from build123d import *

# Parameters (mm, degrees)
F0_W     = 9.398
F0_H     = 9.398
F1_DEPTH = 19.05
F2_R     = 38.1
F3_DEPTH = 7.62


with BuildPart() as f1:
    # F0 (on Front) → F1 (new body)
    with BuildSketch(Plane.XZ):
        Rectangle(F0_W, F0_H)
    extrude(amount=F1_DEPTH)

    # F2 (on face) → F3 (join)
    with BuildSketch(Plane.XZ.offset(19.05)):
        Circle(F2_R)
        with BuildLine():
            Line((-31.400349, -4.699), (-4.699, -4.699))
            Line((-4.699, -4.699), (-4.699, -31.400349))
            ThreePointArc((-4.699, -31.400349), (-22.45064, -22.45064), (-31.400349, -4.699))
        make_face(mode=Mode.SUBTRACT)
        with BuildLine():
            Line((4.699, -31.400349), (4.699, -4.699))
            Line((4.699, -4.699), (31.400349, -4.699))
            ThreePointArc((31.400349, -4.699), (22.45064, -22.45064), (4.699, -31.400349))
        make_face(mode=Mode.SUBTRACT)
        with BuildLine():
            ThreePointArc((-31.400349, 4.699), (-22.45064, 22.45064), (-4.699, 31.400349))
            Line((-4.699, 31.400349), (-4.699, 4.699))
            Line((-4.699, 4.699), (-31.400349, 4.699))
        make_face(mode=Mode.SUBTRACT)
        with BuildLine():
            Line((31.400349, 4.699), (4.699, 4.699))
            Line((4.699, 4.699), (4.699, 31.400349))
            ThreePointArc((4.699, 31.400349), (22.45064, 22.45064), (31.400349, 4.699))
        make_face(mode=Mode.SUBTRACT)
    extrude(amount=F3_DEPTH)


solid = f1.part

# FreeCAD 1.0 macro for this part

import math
import FreeCAD as App
import Part
import Sketcher

V = App.Vector
Q = App.Units.Quantity

doc = App.newDocument("Part")
body = doc.addObject("PartDesign::Body", "Body")

sketch1 = doc.addObject("Sketcher::SketchObject", "Sketch")
body.addObject(sketch1)
sketch1.AttachmentSupport = (doc.XZ_Plane, [""])
sketch1.MapMode = "FlatFace"
sketch1.addGeometry([
    Part.LineSegment(V(-4.699, 4.699, 0), V(-4.699, -4.699, 0)),
    Part.LineSegment(V(-4.699, -4.699, 0), V(4.699, -4.699, 0)),
    Part.LineSegment(V(4.699, -4.699, 0), V(4.699, 4.699, 0)),
    Part.LineSegment(V(4.699, 4.699, 0), V(-4.699, 4.699, 0)),
], False)
sketch1.addConstraint([
    Sketcher.Constraint("Coincident", 0, 2, 1, 1),
    Sketcher.Constraint("Coincident", 1, 2, 2, 1),
    Sketcher.Constraint("Coincident", 2, 2, 3, 1),
    Sketcher.Constraint("Coincident", 3, 2, 0, 1),
    Sketcher.Constraint("Vertical", 0),
    Sketcher.Constraint("Horizontal", 1),
    Sketcher.Constraint("Vertical", 2),
    Sketcher.Constraint("Horizontal", 3),
    Sketcher.Constraint("Symmetric", 0, 2, 2, 2, -1, 1),
    Sketcher.Constraint("Equal", 3, 0),
    Sketcher.Constraint("DistanceX", 1, 1, 1, 2, Q("0.37 in")),
])
pad1 = doc.addObject("PartDesign::Pad", "Pad")
body.addObject(pad1)
pad1.Profile = sketch1
pad1.Length = Q("0.75 in")

sketch2 = doc.addObject("Sketcher::SketchObject", "Sketch001")
body.addObject(sketch2)
sketch2.AttachmentSupport = (doc.XZ_Plane, [""])
sketch2.MapMode = "FlatFace"
sketch2.AttachmentOffset = App.Placement(V(0, 0, 0.75 * 25.4), App.Rotation())
sketch2.addGeometry([
    Part.Circle(V(0, 0, 0), V(0, 0, 1), 38.1),
    Part.ArcOfCircle(Part.Circle(V(0.000003, 0.000003, 0), V(0, 0, 1), 31.750003), math.radians(-171.488955), math.radians(-98.511045)),
    Part.LineSegment(V(-31.400349, -4.699, 0), V(-4.699, -4.699, 0)),
    Part.LineSegment(V(-4.699, -4.699, 0), V(-4.699, -31.400349, 0)),
    Part.ArcOfCircle(Part.Circle(V(-0.000003, 0.000003, 0), V(0, 0, 1), 31.750003), math.radians(-81.488955), math.radians(-8.511045)),
    Part.LineSegment(V(4.699, -31.400349, 0), V(4.699, -4.699, 0)),
    Part.LineSegment(V(4.699, -4.699, 0), V(31.400349, -4.699, 0)),
    Part.LineSegment(V(-4.699, 4.699, 0), V(-31.400349, 4.699, 0)),
    Part.ArcOfCircle(Part.Circle(V(0.000003, -0.000003, 0), V(0, 0, 1), 31.750003), math.radians(98.511045), math.radians(171.488955)),
    Part.LineSegment(V(-4.699, 31.400349, 0), V(-4.699, 4.699, 0)),
    Part.ArcOfCircle(Part.Circle(V(-0.000003, -0.000003, 0), V(0, 0, 1), 31.750003), math.radians(8.511045), math.radians(81.488955)),
    Part.LineSegment(V(31.400349, 4.699, 0), V(4.699, 4.699, 0)),
    Part.LineSegment(V(4.699, 4.699, 0), V(4.699, 31.400349, 0)),
], False)
sketch2.addConstraint([
    Sketcher.Constraint("Coincident", 1, 1, 2, 1),
    Sketcher.Constraint("Coincident", 2, 2, 3, 1),
    Sketcher.Constraint("Coincident", 3, 2, 1, 2),
    Sketcher.Constraint("Coincident", 4, 1, 5, 1),
    Sketcher.Constraint("Coincident", 5, 2, 6, 1),
    Sketcher.Constraint("Coincident", 6, 2, 4, 2),
    Sketcher.Constraint("Coincident", 7, 2, 8, 2),
    Sketcher.Constraint("Coincident", 8, 1, 9, 1),
    Sketcher.Constraint("Coincident", 9, 2, 7, 1),
    Sketcher.Constraint("Coincident", 10, 1, 11, 1),
    Sketcher.Constraint("Coincident", 11, 2, 12, 1),
    Sketcher.Constraint("Coincident", 12, 2, 10, 2),
    Sketcher.Constraint("Horizontal", 2),
    Sketcher.Constraint("Vertical", 3),
    Sketcher.Constraint("Vertical", 5),
    Sketcher.Constraint("Horizontal", 6),
    Sketcher.Constraint("Horizontal", 7),
    Sketcher.Constraint("Vertical", 9),
    Sketcher.Constraint("Horizontal", 11),
    Sketcher.Constraint("Vertical", 12),
    Sketcher.Constraint("Coincident", 0, 3, -1, 1),
    Sketcher.Constraint("Coincident", 1, 3, -1, 1),
    Sketcher.Constraint("Coincident", 4, 3, -1, 1),
    Sketcher.Constraint("Coincident", 8, 3, -1, 1),
    Sketcher.Constraint("Coincident", 10, 3, -1, 1),
    Sketcher.Constraint("Equal", 1, 4),
    Sketcher.Constraint("Equal", 4, 8),
    Sketcher.Constraint("Equal", 8, 10),
    Sketcher.Constraint("Symmetric", 5, 2, 9, 2, -1, 1),
    Sketcher.Constraint("Symmetric", 2, 2, 11, 2, -1, 1),
    Sketcher.Constraint("Symmetric", 2, 2, 5, 2, -2),
    Sketcher.Constraint("Equal", 11, 3),
    Sketcher.Constraint("Diameter", 0, Q("3 in")),
    Sketcher.Constraint("Radius", 1, Q("1.2500001 in")),
    Sketcher.Constraint("DistanceX", 3, 2, 4, 1, Q("0.37 in")),
])
pad2 = doc.addObject("PartDesign::Pad", "Pad001")
body.addObject(pad2)
pad2.Profile = sketch2
pad2.Length = Q("0.3 in")

doc.recompute()
